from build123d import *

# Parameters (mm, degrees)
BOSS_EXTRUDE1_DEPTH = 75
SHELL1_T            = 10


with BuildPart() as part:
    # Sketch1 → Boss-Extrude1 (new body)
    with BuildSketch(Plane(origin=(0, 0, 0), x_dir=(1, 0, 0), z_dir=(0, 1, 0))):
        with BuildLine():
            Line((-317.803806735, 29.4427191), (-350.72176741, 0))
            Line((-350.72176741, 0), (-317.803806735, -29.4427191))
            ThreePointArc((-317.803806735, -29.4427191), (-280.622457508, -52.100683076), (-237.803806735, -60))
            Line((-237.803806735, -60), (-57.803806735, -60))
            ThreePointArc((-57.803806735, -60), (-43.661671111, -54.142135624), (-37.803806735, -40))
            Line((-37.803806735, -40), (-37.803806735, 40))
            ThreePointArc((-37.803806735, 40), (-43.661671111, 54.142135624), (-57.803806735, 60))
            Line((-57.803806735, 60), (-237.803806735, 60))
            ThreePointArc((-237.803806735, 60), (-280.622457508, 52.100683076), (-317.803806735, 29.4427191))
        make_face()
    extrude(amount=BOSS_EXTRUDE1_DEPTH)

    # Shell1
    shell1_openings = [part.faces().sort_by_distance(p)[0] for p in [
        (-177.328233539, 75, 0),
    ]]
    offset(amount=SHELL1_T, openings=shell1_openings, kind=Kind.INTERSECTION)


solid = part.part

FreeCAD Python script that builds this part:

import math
import FreeCAD as App
import Part
import Sketcher
from FreeCAD import Vector
Q = App.Units.Quantity


def faces_at(feature, points):
    """Names of the faces that lie closest to the given points."""
    faces = feature.Shape.Faces
    near = lambda p: min(range(len(faces)), key=lambda i: faces[i].distToShape(Part.Vertex(*p))[0])
    return sorted({f"Face{near(p) + 1}" for p in points})

doc = App.newDocument("Part")
body = doc.addObject("PartDesign::Body", "Body")

# Sketch on XZ plane
sketch1 = body.newObject("Sketcher::SketchObject", "Sketch")
sketch1.AttachmentSupport = (doc.getObject("XZ_Plane"), [""])
sketch1.MapMode = "FlatFace"
sketch1.addGeometry(Part.LineSegment(Vector(-318, -29, 0), Vector(-351, 0, 0)), False)
sketch1.addGeometry(Part.LineSegment(Vector(-351, 0, 0), Vector(-318, 29, 0)), False)
sketch1.addGeometry(Part.ArcOfCircle(Part.Circle(Vector(-238, -60, 0), Vector(0, 0, 1), 120), math.radians(90), math.radians(132)), False)
sketch1.addGeometry(Part.LineSegment(Vector(-238, 60, 0), Vector(-58, 60, 0)), False)
sketch1.addGeometry(Part.ArcOfCircle(Part.Circle(Vector(-58, 40, 0), Vector(0, 0, 1), 20), math.radians(0), math.radians(90)), False)
sketch1.addGeometry(Part.LineSegment(Vector(-38, 40, 0), Vector(-38, -40, 0)), False)
sketch1.addGeometry(Part.ArcOfCircle(Part.Circle(Vector(-58, -40, 0), Vector(0, 0, 1), 20), math.radians(-90), math.radians(0)), False)
sketch1.addGeometry(Part.LineSegment(Vector(-58, -60, 0), Vector(-238, -60, 0)), False)
sketch1.addGeometry(Part.ArcOfCircle(Part.Circle(Vector(-238, 60, 0), Vector(0, 0, 1), 120), math.radians(-132), math.radians(-90)), False)
sketch1.addConstraint(Sketcher.Constraint("Coincident", 0, 2, 1, 1))
sketch1.addConstraint(Sketcher.Constraint("Tangent", 1, 2, 2, 2))
sketch1.addConstraint(Sketcher.Constraint("Tangent", 2, 1, 3, 1))
sketch1.addConstraint(Sketcher.Constraint("Tangent", 3, 2, 4, 2))
sketch1.addConstraint(Sketcher.Constraint("Tangent", 4, 1, 5, 1))
sketch1.addConstraint(Sketcher.Constraint("Tangent", 5, 2, 6, 2))
sketch1.addConstraint(Sketcher.Constraint("Tangent", 6, 1, 7, 1))
sketch1.addConstraint(Sketcher.Constraint("Tangent", 7, 2, 8, 2))
sketch1.addConstraint(Sketcher.Constraint("Tangent", 8, 1, 0, 1))
sketch1.addConstraint(Sketcher.Constraint("Horizontal", 3))
sketch1.addConstraint(Sketcher.Constraint("Vertical", 5))
sketch1.addConstraint(Sketcher.Constraint("Horizontal", 7))
sketch1.addConstraint(Sketcher.Constraint("Coincident", 2, 1, 8, 3))
sketch1.addConstraint(Sketcher.Constraint("Equal", 4, 6))
sketch1.addConstraint(Sketcher.Constraint("Equal", 2, 8))
sketch1.addConstraint(Sketcher.Constraint("Symmetric", 1, 2, 8, 1, -1))
sketch1.addConstraint(Sketcher.Constraint("Radius", 2, Q("120 mm")))
sketch1.addConstraint(Sketcher.Constraint("Radius", 4, Q("20 mm")))
sketch1.addConstraint(Sketcher.Constraint("DistanceX", 3, 1, 3, 2, Q("180 mm")))
sketch1.addConstraint(Sketcher.Constraint("DistanceX", 1, 2, 8, 3, Q("80 mm")))
sketch1.addConstraint(Sketcher.Constraint("DistanceX", 2, 3, -1, 1, Q("237.803807 mm")))
pad1 = body.newObject("PartDesign::Pad", "Pad")
pad1.Profile = sketch1
pad1.Length = 75
pad1.Reversed = True
doc.recompute()

thickness = body.newObject("PartDesign::Thickness", "Thickness")
thickness.Base = (pad1, faces_at(pad1, [(-194.263, 75, 0)]))
thickness.Value = 10
thickness.Reversed = False
thickness.Join = "Intersection"

doc.recompute()
